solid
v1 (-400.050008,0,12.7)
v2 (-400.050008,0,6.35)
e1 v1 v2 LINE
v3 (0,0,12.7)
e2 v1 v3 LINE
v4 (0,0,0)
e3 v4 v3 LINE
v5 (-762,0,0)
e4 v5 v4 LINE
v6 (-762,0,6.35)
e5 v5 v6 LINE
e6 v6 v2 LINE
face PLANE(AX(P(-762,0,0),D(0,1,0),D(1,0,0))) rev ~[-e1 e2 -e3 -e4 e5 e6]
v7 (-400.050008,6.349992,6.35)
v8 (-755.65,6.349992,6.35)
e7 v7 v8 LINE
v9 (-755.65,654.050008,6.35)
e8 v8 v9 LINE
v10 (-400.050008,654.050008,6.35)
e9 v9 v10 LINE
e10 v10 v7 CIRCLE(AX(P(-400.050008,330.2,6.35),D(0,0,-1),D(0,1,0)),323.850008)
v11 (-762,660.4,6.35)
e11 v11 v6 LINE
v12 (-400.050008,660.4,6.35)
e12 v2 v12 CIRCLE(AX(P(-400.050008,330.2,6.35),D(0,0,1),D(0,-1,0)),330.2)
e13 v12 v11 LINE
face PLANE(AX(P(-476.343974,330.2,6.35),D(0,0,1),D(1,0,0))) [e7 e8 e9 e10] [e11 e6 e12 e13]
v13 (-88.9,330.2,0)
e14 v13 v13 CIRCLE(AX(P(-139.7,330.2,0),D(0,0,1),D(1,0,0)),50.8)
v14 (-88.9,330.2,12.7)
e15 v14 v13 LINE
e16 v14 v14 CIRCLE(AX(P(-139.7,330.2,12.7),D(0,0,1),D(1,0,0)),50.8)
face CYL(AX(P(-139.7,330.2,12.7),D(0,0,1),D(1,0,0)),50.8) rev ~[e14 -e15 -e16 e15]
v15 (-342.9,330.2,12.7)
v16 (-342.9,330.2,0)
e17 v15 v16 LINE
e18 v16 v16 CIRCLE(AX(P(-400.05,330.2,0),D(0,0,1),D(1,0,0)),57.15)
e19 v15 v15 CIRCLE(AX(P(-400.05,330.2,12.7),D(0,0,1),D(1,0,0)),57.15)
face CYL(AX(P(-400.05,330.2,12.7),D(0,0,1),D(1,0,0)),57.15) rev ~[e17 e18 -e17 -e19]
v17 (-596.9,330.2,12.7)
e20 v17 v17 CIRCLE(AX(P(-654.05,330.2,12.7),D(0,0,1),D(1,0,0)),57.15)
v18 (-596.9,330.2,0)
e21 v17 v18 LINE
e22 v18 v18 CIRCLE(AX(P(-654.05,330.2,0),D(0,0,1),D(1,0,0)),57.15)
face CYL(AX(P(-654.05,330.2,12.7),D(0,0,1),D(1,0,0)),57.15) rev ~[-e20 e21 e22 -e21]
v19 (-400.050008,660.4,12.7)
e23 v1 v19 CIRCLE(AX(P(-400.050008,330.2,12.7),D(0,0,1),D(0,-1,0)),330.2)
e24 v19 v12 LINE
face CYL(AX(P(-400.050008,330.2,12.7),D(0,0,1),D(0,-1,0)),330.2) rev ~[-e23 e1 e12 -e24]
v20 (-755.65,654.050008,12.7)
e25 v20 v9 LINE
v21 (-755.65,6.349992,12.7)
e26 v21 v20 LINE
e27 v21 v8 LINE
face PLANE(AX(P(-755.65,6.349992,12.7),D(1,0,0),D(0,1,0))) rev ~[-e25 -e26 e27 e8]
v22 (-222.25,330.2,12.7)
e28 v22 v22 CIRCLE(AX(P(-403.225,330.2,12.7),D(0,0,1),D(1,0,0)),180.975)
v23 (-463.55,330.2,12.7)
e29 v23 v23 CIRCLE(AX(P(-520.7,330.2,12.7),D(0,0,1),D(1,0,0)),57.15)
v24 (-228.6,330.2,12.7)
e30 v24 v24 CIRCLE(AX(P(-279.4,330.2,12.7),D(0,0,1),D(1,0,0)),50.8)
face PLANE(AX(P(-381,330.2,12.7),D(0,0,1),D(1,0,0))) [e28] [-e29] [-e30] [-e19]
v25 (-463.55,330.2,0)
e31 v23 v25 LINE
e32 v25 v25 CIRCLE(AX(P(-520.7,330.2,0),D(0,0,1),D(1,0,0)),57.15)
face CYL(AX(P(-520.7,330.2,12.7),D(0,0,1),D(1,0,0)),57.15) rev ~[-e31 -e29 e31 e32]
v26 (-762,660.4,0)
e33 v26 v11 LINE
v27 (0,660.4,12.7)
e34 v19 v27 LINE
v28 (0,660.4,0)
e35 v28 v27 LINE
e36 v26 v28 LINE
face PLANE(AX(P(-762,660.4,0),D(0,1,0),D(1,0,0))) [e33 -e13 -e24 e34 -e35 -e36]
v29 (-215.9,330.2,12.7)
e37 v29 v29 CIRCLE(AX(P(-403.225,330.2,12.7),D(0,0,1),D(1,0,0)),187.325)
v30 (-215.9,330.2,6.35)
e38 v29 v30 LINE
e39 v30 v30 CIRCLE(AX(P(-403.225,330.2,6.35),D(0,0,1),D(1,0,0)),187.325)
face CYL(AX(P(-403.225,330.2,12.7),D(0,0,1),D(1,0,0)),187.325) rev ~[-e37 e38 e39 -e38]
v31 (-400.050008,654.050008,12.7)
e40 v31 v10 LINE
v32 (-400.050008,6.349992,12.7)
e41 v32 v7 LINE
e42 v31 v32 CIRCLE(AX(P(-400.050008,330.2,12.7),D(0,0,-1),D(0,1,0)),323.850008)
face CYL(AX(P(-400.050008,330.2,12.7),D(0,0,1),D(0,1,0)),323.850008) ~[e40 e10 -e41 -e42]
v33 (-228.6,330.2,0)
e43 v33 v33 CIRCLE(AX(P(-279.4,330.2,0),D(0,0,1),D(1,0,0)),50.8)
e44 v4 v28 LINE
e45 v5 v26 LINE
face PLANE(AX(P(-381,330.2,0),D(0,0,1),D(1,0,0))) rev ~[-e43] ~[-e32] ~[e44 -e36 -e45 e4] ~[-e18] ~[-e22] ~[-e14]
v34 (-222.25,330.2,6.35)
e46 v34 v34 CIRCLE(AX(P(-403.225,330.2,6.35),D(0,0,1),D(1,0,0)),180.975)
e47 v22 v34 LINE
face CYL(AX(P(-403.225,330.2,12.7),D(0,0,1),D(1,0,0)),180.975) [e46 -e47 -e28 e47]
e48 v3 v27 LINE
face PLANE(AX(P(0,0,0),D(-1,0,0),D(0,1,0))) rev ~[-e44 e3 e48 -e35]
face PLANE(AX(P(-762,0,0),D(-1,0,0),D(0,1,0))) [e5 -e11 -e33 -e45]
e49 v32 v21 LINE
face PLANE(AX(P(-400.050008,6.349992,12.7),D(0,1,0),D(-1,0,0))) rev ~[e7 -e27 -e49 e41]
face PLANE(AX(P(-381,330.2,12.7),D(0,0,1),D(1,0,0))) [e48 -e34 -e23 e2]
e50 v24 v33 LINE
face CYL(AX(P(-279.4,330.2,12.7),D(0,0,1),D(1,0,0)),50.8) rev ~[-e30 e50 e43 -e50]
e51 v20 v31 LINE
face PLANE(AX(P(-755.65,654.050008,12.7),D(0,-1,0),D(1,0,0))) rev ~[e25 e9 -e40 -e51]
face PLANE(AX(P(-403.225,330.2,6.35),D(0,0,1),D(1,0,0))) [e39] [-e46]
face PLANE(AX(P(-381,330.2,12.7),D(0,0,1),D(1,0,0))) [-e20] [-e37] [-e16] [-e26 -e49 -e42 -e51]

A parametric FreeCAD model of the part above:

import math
import FreeCAD as App
import Part
import Sketcher
from FreeCAD import Vector
Q = App.Units.Quantity


def add_polygon(sketch, points):
    """Adds a closed chain of lines whose ends are joined by coincident constraints."""
    first, n = sketch.GeometryCount, len(points)
    for a, b in zip(points, points[1:] + points[:1]):
        sketch.addGeometry(Part.LineSegment(App.Vector(*a, 0), App.Vector(*b, 0)), False)
    for i in range(n):
        sketch.addConstraint(Sketcher.Constraint("Coincident", first + i, 2, first + (i + 1) % n, 1))

doc = App.newDocument("Part")
body = doc.addObject("PartDesign::Body", "Body")

# Sketch on XY plane
sketch1 = doc.addObject("Sketcher::SketchObject", "Sketch")
body.addObject(sketch1)
sketch1.AttachmentSupport = (doc.XY_Plane, [""])
sketch1.MapMode = "FlatFace"
add_polygon(sketch1, [(-762, 660), (-762, 0), (0, 0), (0, 660)])  # lines 0-3
sketch1.addConstraint([
    Sketcher.Constraint("Vertical", 0),
    Sketcher.Constraint("Horizontal", 1),
    Sketcher.Constraint("Vertical", 2),
    Sketcher.Constraint("Horizontal", 3),
    Sketcher.Constraint("Coincident", 1, 2, -1, 1),
    Sketcher.Constraint("DistanceX", 1, 1, 1, 2, Q("30 in")),
    Sketcher.Constraint("DistanceY", 0, 2, 0, 1, Q("26 in")),
])
pad1 = doc.addObject("PartDesign::Pad", "Pad")
body.addObject(pad1)
pad1.Profile = sketch1
pad1.Length = Q("0.5 in")

# Sketch on XY plane
sketch2 = doc.addObject("Sketcher::SketchObject", "Sketch001")
body.addObject(sketch2)
sketch2.AttachmentSupport = (doc.XY_Plane, [""])
sketch2.MapMode = "FlatFace"
sketch2.AttachmentOffset = App.Placement(Vector(0, 0, 0.5 * 25.4), App.Rotation())
sketch2.addGeometry([
    Part.Circle(Vector(-140, 330, 0), Vector(0, 0, 1), 51),  # 0
    Part.Circle(Vector(-279, 330, 0), Vector(0, 0, 1), 51),  # 1
    Part.Circle(Vector(-400, 330, 0), Vector(0, 0, 1), 57),  # 2
    Part.Circle(Vector(-521, 330, 0), Vector(0, 0, 1), 57),  # 3
    Part.Circle(Vector(-654, 330, 0), Vector(0, 0, 1), 57),  # 4
], False)
sketch2.addConstraint([
    Sketcher.Constraint("Equal", 0, 1),
    Sketcher.Constraint("Equal", 2, 3),
    Sketcher.Constraint("Equal", 3, 4),
    Sketcher.Constraint("Horizontal", 0, 3, 1, 3),
    Sketcher.Constraint("Horizontal", 1, 3, 2, 3),
    Sketcher.Constraint("Horizontal", 2, 3, 3, 3),
    Sketcher.Constraint("Horizontal", 3, 3, 4, 3),
    Sketcher.Constraint("Diameter", 0, Q("4 in")),
    Sketcher.Constraint("Diameter", 2, Q("4.5 in")),
    Sketcher.Constraint("DistanceY", -1, 1, 0, 3, Q("13 in")),
    Sketcher.Constraint("DistanceX", 1, 3, -1, 1, Q("11 in")),
    Sketcher.Constraint("DistanceX", 3, 3, 0, 3, Q("15 in")),
    Sketcher.Constraint("DistanceX", 4, 3, 2, 3, Q("10 in")),
    Sketcher.Constraint("DistanceX", 0, 3, -1, 1, Q("5.5 in")),
    Sketcher.Constraint("DistanceX", 2, 3, -1, 1, Q("15.75 in")),
])
pocket1 = doc.addObject("PartDesign::Pocket", "Pocket")
body.addObject(pocket1)
pocket1.Profile = sketch2
pocket1.Type = "ThroughAll"

# Sketch on XY plane
sketch3 = doc.addObject("Sketcher::SketchObject", "Sketch002")
body.addObject(sketch3)
sketch3.AttachmentSupport = (doc.XY_Plane, [""])
sketch3.MapMode = "FlatFace"
sketch3.AttachmentOffset = App.Placement(Vector(0, 0, 0.5 * 25.4), App.Rotation())
sketch3.addGeometry([
    Part.LineSegment(Vector(-762, 0, 0), Vector(-400, 0, 0)),  # 0
    Part.ArcOfCircle(Part.Circle(Vector(-400, 330, 0), Vector(0, 0, 1), 330), math.radians(-90), math.radians(90)),  # 1
    Part.LineSegment(Vector(-400, 660, 0), Vector(-762, 660, 0)),  # 2
    Part.LineSegment(Vector(-762, 660, 0), Vector(-762, 0, 0)),  # 3
    Part.LineSegment(Vector(-756, 654, 0), Vector(-400, 654, 0)),  # 4
    Part.ArcOfCircle(Part.Circle(Vector(-400, 330, 0), Vector(0, 0, 1), 324), math.radians(-90), math.radians(90)),  # 5
    Part.LineSegment(Vector(-400, 6, 0), Vector(-756, 6, 0)),  # 6
    Part.LineSegment(Vector(-756, 6, 0), Vector(-756, 654, 0)),  # 7
    Part.Circle(Vector(-403, 330, 0), Vector(0, 0, 1), 187),  # 8
    Part.Circle(Vector(-403, 330, 0), Vector(0, 0, 1), 181),  # 9
], False)
sketch3.addConstraint([
    Sketcher.Constraint("Tangent", 0, 2, 1, 1),
    Sketcher.Constraint("Tangent", 1, 2, 2, 1),
    Sketcher.Constraint("Coincident", 2, 2, 3, 1),
    Sketcher.Constraint("Coincident", 3, 2, 0, 1),
    Sketcher.Constraint("Tangent", 4, 2, 5, 2),
    Sketcher.Constraint("Tangent", 5, 1, 6, 1),
    Sketcher.Constraint("Coincident", 6, 2, 7, 1),
    Sketcher.Constraint("Coincident", 7, 2, 4, 1),
    Sketcher.Constraint("Horizontal", 0),
    Sketcher.Constraint("Horizontal", 2),
    Sketcher.Constraint("Vertical", 3),
    Sketcher.Constraint("Horizontal", 4),
    Sketcher.Constraint("Horizontal", 6),
    Sketcher.Constraint("Vertical", 7),
    Sketcher.Constraint("Coincident", 5, 3, 1, 3),
    Sketcher.Constraint("Coincident", 9, 3, 8, 3),
    Sketcher.Constraint("PointOnObject", 0, 2, -1),
    Sketcher.Constraint("Horizontal", 5, 3, 8, 3),
    Sketcher.Constraint("Radius", 1, Q("13 in")),
    Sketcher.Constraint("Diameter", 8, Q("14.75 in")),
    Sketcher.Constraint("Diameter", 9, Q("14.25 in")),
    Sketcher.Constraint("DistanceX", 2, 2, -1, 1, Q("30 in")),
    Sketcher.Constraint("DistanceX", 6, 2, -1, 1, Q("29.75 in")),
    Sketcher.Constraint("DistanceX", 8, 3, -1, 1, Q("15.875 in")),
    Sketcher.Constraint("Radius", 5, Q("323.850008 mm")),
    Sketcher.Constraint("DistanceX", 0, 1, 0, 2, Q("361.949992 mm")),
])
pocket2 = doc.addObject("PartDesign::Pocket", "Pocket001")
body.addObject(pocket2)
pocket2.Profile = sketch3
pocket2.Length = Q("0.25 in")

doc.recompute()
